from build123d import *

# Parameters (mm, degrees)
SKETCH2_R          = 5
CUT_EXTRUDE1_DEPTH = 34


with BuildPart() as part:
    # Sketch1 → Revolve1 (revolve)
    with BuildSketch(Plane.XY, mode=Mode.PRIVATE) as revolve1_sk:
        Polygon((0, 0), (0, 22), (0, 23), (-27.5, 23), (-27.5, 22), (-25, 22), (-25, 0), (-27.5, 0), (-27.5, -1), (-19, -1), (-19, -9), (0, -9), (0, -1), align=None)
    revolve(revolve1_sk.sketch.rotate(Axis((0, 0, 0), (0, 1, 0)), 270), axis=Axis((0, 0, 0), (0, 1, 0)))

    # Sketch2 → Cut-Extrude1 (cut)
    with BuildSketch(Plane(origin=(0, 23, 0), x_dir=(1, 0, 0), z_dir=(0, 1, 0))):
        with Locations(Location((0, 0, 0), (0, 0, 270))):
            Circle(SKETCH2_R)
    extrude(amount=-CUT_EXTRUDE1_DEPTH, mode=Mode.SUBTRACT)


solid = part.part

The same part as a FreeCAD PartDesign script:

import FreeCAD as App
import Part
import Sketcher
from FreeCAD import Vector
Q = App.Units.Quantity

doc = App.newDocument("Part")
body = doc.addObject("PartDesign::Body", "Body")

# Sketch on XY plane
sketch1 = body.newObject("Sketcher::SketchObject", "Sketch")
sketch1.AttachmentSupport = (doc.getObject("XY_Plane"), [""])
sketch1.MapMode = "FlatFace"
sketch1.addGeometry(Part.LineSegment(Vector(0, 23, 0), Vector(-27.5, 23, 0)), False)
sketch1.addGeometry(Part.LineSegment(Vector(-27.5, 23, 0), Vector(-27.5, 22, 0)), False)
sketch1.addGeometry(Part.LineSegment(Vector(-27.5, 22, 0), Vector(-25, 22, 0)), False)
sketch1.addGeometry(Part.LineSegment(Vector(-25, 22, 0), Vector(-25, 0, 0)), False)
sketch1.addGeometry(Part.LineSegment(Vector(-25, 0, 0), Vector(-27.5, 0, 0)), False)
sketch1.addGeometry(Part.LineSegment(Vector(-27.5, 0, 0), Vector(-27.5, -1, 0)), False)
sketch1.addGeometry(Part.LineSegment(Vector(-27.5, -1, 0), Vector(-19, -1, 0)), False)
sketch1.addGeometry(Part.LineSegment(Vector(-19, -1, 0), Vector(-19, -9, 0)), False)
sketch1.addGeometry(Part.LineSegment(Vector(-19, -9, 0), Vector(0, -9, 0)), False)
sketch1.addGeometry(Part.LineSegment(Vector(0, -9, 0), Vector(0, 23, 0)), False)
sketch1.addConstraint(Sketcher.Constraint("Coincident", 0, 2, 1, 1))
sketch1.addConstraint(Sketcher.Constraint("Coincident", 1, 2, 2, 1))
sketch1.addConstraint(Sketcher.Constraint("Coincident", 2, 2, 3, 1))
sketch1.addConstraint(Sketcher.Constraint("Coincident", 3, 2, 4, 1))
sketch1.addConstraint(Sketcher.Constraint("Coincident", 4, 2, 5, 1))
sketch1.addConstraint(Sketcher.Constraint("Coincident", 5, 2, 6, 1))
sketch1.addConstraint(Sketcher.Constraint("Coincident", 6, 2, 7, 1))
sketch1.addConstraint(Sketcher.Constraint("Coincident", 7, 2, 8, 1))
sketch1.addConstraint(Sketcher.Constraint("Coincident", 8, 2, 9, 1))
sketch1.addConstraint(Sketcher.Constraint("Coincident", 9, 2, 0, 1))
sketch1.addConstraint(Sketcher.Constraint("Horizontal", 0))
sketch1.addConstraint(Sketcher.Constraint("Vertical", 1))
sketch1.addConstraint(Sketcher.Constraint("Horizontal", 2))
sketch1.addConstraint(Sketcher.Constraint("Vertical", 3))
sketch1.addConstraint(Sketcher.Constraint("Horizontal", 4))
sketch1.addConstraint(Sketcher.Constraint("Vertical", 5))
sketch1.addConstraint(Sketcher.Constraint("Horizontal", 6))
sketch1.addConstraint(Sketcher.Constraint("Vertical", 7))
sketch1.addConstraint(Sketcher.Constraint("Horizontal", 8))
sketch1.addConstraint(Sketcher.Constraint("Vertical", 9))
sketch1.addConstraint(Sketcher.Constraint("PointOnObject", 3, 2, -1))
sketch1.addConstraint(Sketcher.Constraint("PointOnObject", 8, 2, -2))
sketch1.addConstraint(Sketcher.Constraint("Vertical", 1, 2, 4, 2))
sketch1.addConstraint(Sketcher.Constraint("Equal", 1, 5))
sketch1.addConstraint(Sketcher.Constraint("DistanceX", 8, 1, 8, 2, Q("19 mm")))
sketch1.addConstraint(Sketcher.Constraint("DistanceY", 1, 2, 1, 1, Q("1 mm")))
sketch1.addConstraint(Sketcher.Constraint("DistanceY", 3, 2, 3, 1, Q("22 mm")))
sketch1.addConstraint(Sketcher.Constraint("DistanceY", 7, 2, 7, 1, Q("8 mm")))
sketch1.addConstraint(Sketcher.Constraint("DistanceX", 0, 2, 0, 1, Q("27.5 mm")))
sketch1.addConstraint(Sketcher.Constraint("DistanceX", 2, 1, 2, 2, Q("2.5 mm")))
revolution = body.newObject("PartDesign::Revolution", "Revolution")
revolution.Profile = sketch1
revolution.ReferenceAxis = (sketch1, ["V_Axis"])
revolution.Angle = 360

# Sketch on XZ plane
sketch2 = body.newObject("Sketcher::SketchObject", "Sketch001")
sketch2.AttachmentSupport = (doc.getObject("XZ_Plane"), [""])
sketch2.MapMode = "FlatFace"
sketch2.AttachmentOffset = App.Placement(Vector(0, 0, -23), App.Rotation())
sketch2.addGeometry(Part.Circle(Vector(0, 0, 0), Vector(0, 0, 1), 5), False)
sketch2.addConstraint(Sketcher.Constraint("Coincident", 0, 3, -1, 1))
sketch2.addConstraint(Sketcher.Constraint("Diameter", 0, Q("10 mm")))
pocket1 = body.newObject("PartDesign::Pocket", "Pocket")
pocket1.Profile = sketch2
pocket1.Length = 34
pocket1.Reversed = True

doc.recompute()
